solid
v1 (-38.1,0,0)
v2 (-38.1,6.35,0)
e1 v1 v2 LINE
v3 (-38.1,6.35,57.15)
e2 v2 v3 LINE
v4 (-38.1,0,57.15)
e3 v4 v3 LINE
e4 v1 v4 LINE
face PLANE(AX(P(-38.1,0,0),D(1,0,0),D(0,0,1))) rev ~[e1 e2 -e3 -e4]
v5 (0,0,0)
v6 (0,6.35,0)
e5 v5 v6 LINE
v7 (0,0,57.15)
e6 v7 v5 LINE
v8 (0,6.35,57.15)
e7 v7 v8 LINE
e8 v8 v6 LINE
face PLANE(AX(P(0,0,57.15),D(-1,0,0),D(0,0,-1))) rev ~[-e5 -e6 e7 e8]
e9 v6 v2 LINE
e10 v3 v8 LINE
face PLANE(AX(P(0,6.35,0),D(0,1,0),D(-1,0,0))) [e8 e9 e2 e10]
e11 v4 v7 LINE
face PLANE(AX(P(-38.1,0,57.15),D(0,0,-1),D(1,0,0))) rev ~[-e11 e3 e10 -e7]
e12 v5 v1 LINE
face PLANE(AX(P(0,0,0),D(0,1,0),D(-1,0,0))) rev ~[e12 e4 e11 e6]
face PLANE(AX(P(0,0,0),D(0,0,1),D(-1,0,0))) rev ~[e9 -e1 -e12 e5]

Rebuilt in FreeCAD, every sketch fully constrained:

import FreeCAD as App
import Part
import Sketcher
from FreeCAD import Vector
Q = App.Units.Quantity


def add_polygon(sketch, points):
    """Adds a closed chain of lines whose ends are joined by coincident constraints."""
    first, n = sketch.GeometryCount, len(points)
    for a, b in zip(points, points[1:] + points[:1]):
        sketch.addGeometry(Part.LineSegment(App.Vector(*a, 0), App.Vector(*b, 0)), False)
    for i in range(n):
        sketch.addConstraint(Sketcher.Constraint("Coincident", first + i, 2, first + (i + 1) % n, 1))

doc = App.newDocument("Part")
body = doc.addObject("PartDesign::Body", "Body")

# Sketch on XZ plane
sketch1 = body.newObject("Sketcher::SketchObject", "Sketch")
sketch1.AttachmentSupport = (doc.getObject("XZ_Plane"), [""])
sketch1.MapMode = "FlatFace"
add_polygon(sketch1, [(0, 57), (0, 0), (-38, 0), (-38, 57)])  # lines 0-3
sketch1.addConstraint([
    Sketcher.Constraint("Vertical", 0),
    Sketcher.Constraint("Horizontal", 1),
    Sketcher.Constraint("Vertical", 2),
    Sketcher.Constraint("Horizontal", 3),
    Sketcher.Constraint("Coincident", 0, 2, -1, 1),
    Sketcher.Constraint("DistanceX", 1, 2, 1, 1, Q("1.5 in")),
    Sketcher.Constraint("DistanceY", 0, 2, 0, 1, Q("2.25 in")),
])
pad1 = body.newObject("PartDesign::Pad", "Pad")
pad1.Profile = sketch1
pad1.Length = Q("0.25 in")
pad1.Reversed = True

doc.recompute()
